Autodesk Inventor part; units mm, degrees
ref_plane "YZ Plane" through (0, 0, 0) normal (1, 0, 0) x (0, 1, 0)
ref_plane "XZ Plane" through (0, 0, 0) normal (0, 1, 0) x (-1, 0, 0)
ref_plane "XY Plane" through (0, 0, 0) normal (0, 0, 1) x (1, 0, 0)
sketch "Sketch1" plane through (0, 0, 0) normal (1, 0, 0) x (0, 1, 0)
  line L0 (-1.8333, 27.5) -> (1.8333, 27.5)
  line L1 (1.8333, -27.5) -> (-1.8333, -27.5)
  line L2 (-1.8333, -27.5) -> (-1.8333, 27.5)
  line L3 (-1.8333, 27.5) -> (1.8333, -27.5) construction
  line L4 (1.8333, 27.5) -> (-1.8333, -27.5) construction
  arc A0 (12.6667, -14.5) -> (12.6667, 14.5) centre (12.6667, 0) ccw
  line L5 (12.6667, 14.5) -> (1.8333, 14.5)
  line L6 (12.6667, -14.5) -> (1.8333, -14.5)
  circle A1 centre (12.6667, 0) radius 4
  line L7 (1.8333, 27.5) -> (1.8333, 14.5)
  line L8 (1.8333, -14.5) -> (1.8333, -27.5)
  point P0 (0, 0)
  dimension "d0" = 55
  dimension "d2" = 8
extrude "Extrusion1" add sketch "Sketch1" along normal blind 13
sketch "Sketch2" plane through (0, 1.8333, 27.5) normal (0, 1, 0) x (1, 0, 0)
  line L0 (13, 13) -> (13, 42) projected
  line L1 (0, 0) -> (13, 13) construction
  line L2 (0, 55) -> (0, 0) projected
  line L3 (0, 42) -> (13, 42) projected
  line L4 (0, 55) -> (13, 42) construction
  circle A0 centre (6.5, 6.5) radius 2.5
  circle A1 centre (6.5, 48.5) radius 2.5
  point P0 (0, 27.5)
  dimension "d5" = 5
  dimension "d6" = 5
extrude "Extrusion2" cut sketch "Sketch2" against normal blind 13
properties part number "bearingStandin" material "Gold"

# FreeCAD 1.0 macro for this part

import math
import FreeCAD as App
import Part
import Sketcher
from FreeCAD import Vector
Q = App.Units.Quantity

doc = App.newDocument("Part")
body = doc.addObject("PartDesign::Body", "Body")

sketch1 = doc.addObject("Sketcher::SketchObject", "Sketch")
body.addObject(sketch1)
sketch1.AttachmentSupport = (doc.YZ_Plane, [""])
sketch1.MapMode = "FlatFace"
sketch1.addGeometry(Part.LineSegment(Vector(1.8333, 27.5, 0), Vector(-1.8333, 27.5, 0)), False)
sketch1.addGeometry(Part.LineSegment(Vector(-1.8333, 27.5, 0), Vector(-1.8333, -27.5, 0)), False)
sketch1.addGeometry(Part.LineSegment(Vector(-1.8333, -27.5, 0), Vector(1.8333, -27.5, 0)), False)
sketch1.addGeometry(Part.LineSegment(Vector(1.8333, -27.5, 0), Vector(1.8333, -14.5, 0)), False)
sketch1.addGeometry(Part.LineSegment(Vector(1.8333, -14.5, 0), Vector(12.6667, -14.5, 0)), False)
sketch1.addGeometry(Part.ArcOfCircle(Part.Circle(Vector(12.6667, 0, 0), Vector(0, 0, 1), 14.5), math.radians(-90), math.radians(90)), False)
sketch1.addGeometry(Part.LineSegment(Vector(12.6667, 14.5, 0), Vector(1.8333, 14.5, 0)), False)
sketch1.addGeometry(Part.LineSegment(Vector(1.8333, 14.5, 0), Vector(1.8333, 27.5, 0)), False)
sketch1.addGeometry(Part.Circle(Vector(12.6667, 0, 0), Vector(0, 0, 1), 4), False)
sketch1.addConstraint(Sketcher.Constraint("Coincident", 0, 2, 1, 1))
sketch1.addConstraint(Sketcher.Constraint("Coincident", 1, 2, 2, 1))
sketch1.addConstraint(Sketcher.Constraint("Coincident", 2, 2, 3, 1))
sketch1.addConstraint(Sketcher.Constraint("Coincident", 3, 2, 4, 1))
sketch1.addConstraint(Sketcher.Constraint("Tangent", 4, 2, 5, 1))
sketch1.addConstraint(Sketcher.Constraint("Tangent", 5, 2, 6, 1))
sketch1.addConstraint(Sketcher.Constraint("Coincident", 6, 2, 7, 1))
sketch1.addConstraint(Sketcher.Constraint("Coincident", 7, 2, 0, 1))
sketch1.addConstraint(Sketcher.Constraint("Horizontal", 0))
sketch1.addConstraint(Sketcher.Constraint("Vertical", 1))
sketch1.addConstraint(Sketcher.Constraint("Horizontal", 2))
sketch1.addConstraint(Sketcher.Constraint("Vertical", 3))
sketch1.addConstraint(Sketcher.Constraint("Horizontal", 4))
sketch1.addConstraint(Sketcher.Constraint("Horizontal", 6))
sketch1.addConstraint(Sketcher.Constraint("Vertical", 7))
sketch1.addConstraint(Sketcher.Constraint("Coincident", 8, 3, 5, 3))
sketch1.addConstraint(Sketcher.Constraint("Symmetric", 0, 2, 2, 2, -1, 1))
sketch1.addConstraint(Sketcher.Constraint("Symmetric", 3, 2, 6, 2, -1))
sketch1.addConstraint(Sketcher.Constraint("Diameter", 8, Q("8 mm")))
sketch1.addConstraint(Sketcher.Constraint("DistanceY", 1, 2, 1, 1, Q("55 mm")))
sketch1.addConstraint(Sketcher.Constraint("Radius", 5, Q("14.5 mm")))
sketch1.addConstraint(Sketcher.Constraint("DistanceX", 0, 2, 5, 3, Q("14.5 mm")))
sketch1.addConstraint(Sketcher.Constraint("DistanceX", 0, 2, 0, 1, Q("3.6666 mm")))
pad1 = doc.addObject("PartDesign::Pad", "Pad")
body.addObject(pad1)
pad1.Profile = sketch1
pad1.Length = 13

sketch2 = doc.addObject("Sketcher::SketchObject", "Sketch001")
body.addObject(sketch2)
sketch2.AttachmentSupport = (doc.XZ_Plane, [""])
sketch2.MapMode = "FlatFace"
sketch2.AttachmentOffset = App.Placement(Vector(0, 0, -1.8333), App.Rotation())
sketch2.addGeometry(Part.Circle(Vector(6.5, 21, 0), Vector(0, 0, 1), 2.5), False)
sketch2.addGeometry(Part.Circle(Vector(6.5, -21, 0), Vector(0, 0, 1), 2.5), False)
sketch2.addConstraint(Sketcher.Constraint("Equal", 0, 1))
sketch2.addConstraint(Sketcher.Constraint("Symmetric", 0, 3, 1, 3, -1))
sketch2.addConstraint(Sketcher.Constraint("Diameter", 0, Q("5 mm")))
sketch2.addConstraint(Sketcher.Constraint("DistanceY", -1, 1, 0, 3, Q("21 mm")))
sketch2.addConstraint(Sketcher.Constraint("DistanceX", -1, 1, 0, 3, Q("6.5 mm")))
pocket1 = doc.addObject("PartDesign::Pocket", "Pocket")
body.addObject(pocket1)
pocket1.Profile = sketch2
pocket1.Length = 13
pocket1.Reversed = True

doc.recompute()
